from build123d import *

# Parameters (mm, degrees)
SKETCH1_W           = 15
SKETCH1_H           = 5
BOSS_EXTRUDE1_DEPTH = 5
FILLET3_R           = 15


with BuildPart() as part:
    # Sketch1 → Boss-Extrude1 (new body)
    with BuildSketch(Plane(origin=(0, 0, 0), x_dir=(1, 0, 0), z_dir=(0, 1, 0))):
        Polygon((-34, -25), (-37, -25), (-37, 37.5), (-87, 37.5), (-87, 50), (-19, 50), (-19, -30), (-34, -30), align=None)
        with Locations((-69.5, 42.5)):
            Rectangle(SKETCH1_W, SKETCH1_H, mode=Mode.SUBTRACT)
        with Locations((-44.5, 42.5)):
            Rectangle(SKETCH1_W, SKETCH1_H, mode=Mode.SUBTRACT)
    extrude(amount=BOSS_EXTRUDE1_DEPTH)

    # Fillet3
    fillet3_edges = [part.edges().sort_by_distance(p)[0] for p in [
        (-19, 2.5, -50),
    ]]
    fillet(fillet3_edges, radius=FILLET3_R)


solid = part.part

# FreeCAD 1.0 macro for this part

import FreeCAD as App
import Part
import Sketcher
from FreeCAD import Vector
Q = App.Units.Quantity


def edges_at(feature, points):
    """Names of the edges that pass closest to the given points."""
    edges = feature.Shape.Edges
    near = lambda p: min(range(len(edges)), key=lambda i: edges[i].distToShape(Part.Vertex(*p))[0])
    return sorted({f"Edge{near(p) + 1}" for p in points})

doc = App.newDocument("Part")
body = doc.addObject("PartDesign::Body", "Body")

# Sketch on XZ plane
sketch1 = body.newObject("Sketcher::SketchObject", "Sketch")
sketch1.AttachmentSupport = (doc.getObject("XZ_Plane"), [""])
sketch1.MapMode = "FlatFace"
sketch1.addGeometry(Part.LineSegment(Vector(-37, 25, 0), Vector(-34, 25, 0)), False)
sketch1.addGeometry(Part.LineSegment(Vector(-34, 25, 0), Vector(-34, 30, 0)), False)
sketch1.addGeometry(Part.LineSegment(Vector(-34, 30, 0), Vector(-19, 30, 0)), False)
sketch1.addGeometry(Part.LineSegment(Vector(-19, 30, 0), Vector(-19, -50, 0)), False)
sketch1.addGeometry(Part.LineSegment(Vector(-19, -50, 0), Vector(-87, -50, 0)), False)
sketch1.addGeometry(Part.LineSegment(Vector(-87, -50, 0), Vector(-87, -37.5, 0)), False)
sketch1.addGeometry(Part.LineSegment(Vector(-87, -37.5, 0), Vector(-37, -37.5, 0)), False)
sketch1.addGeometry(Part.LineSegment(Vector(-37, -37.5, 0), Vector(-37, 25, 0)), False)
sketch1.addGeometry(Part.LineSegment(Vector(-52, -40, 0), Vector(-52, -45, 0)), False)
sketch1.addGeometry(Part.LineSegment(Vector(-52, -45, 0), Vector(-37, -45, 0)), False)
sketch1.addGeometry(Part.LineSegment(Vector(-37, -45, 0), Vector(-37, -40, 0)), False)
sketch1.addGeometry(Part.LineSegment(Vector(-37, -40, 0), Vector(-52, -40, 0)), False)
sketch1.addGeometry(Part.LineSegment(Vector(-77, -40, 0), Vector(-77, -45, 0)), False)
sketch1.addGeometry(Part.LineSegment(Vector(-77, -45, 0), Vector(-62, -45, 0)), False)
sketch1.addGeometry(Part.LineSegment(Vector(-62, -45, 0), Vector(-62, -40, 0)), False)
sketch1.addGeometry(Part.LineSegment(Vector(-62, -40, 0), Vector(-77, -40, 0)), False)
sketch1.addConstraint(Sketcher.Constraint("Coincident", 0, 2, 1, 1))
sketch1.addConstraint(Sketcher.Constraint("Coincident", 1, 2, 2, 1))
sketch1.addConstraint(Sketcher.Constraint("Coincident", 2, 2, 3, 1))
sketch1.addConstraint(Sketcher.Constraint("Coincident", 3, 2, 4, 1))
sketch1.addConstraint(Sketcher.Constraint("Coincident", 4, 2, 5, 1))
sketch1.addConstraint(Sketcher.Constraint("Coincident", 5, 2, 6, 1))
sketch1.addConstraint(Sketcher.Constraint("Coincident", 6, 2, 7, 1))
sketch1.addConstraint(Sketcher.Constraint("Coincident", 7, 2, 0, 1))
sketch1.addConstraint(Sketcher.Constraint("Coincident", 8, 2, 9, 1))
sketch1.addConstraint(Sketcher.Constraint("Coincident", 9, 2, 10, 1))
sketch1.addConstraint(Sketcher.Constraint("Coincident", 10, 2, 11, 1))
sketch1.addConstraint(Sketcher.Constraint("Coincident", 11, 2, 8, 1))
sketch1.addConstraint(Sketcher.Constraint("Coincident", 12, 2, 13, 1))
sketch1.addConstraint(Sketcher.Constraint("Coincident", 13, 2, 14, 1))
sketch1.addConstraint(Sketcher.Constraint("Coincident", 14, 2, 15, 1))
sketch1.addConstraint(Sketcher.Constraint("Coincident", 15, 2, 12, 1))
sketch1.addConstraint(Sketcher.Constraint("Horizontal", 0))
sketch1.addConstraint(Sketcher.Constraint("Vertical", 1))
sketch1.addConstraint(Sketcher.Constraint("Horizontal", 2))
sketch1.addConstraint(Sketcher.Constraint("Vertical", 3))
sketch1.addConstraint(Sketcher.Constraint("Horizontal", 4))
sketch1.addConstraint(Sketcher.Constraint("Vertical", 5))
sketch1.addConstraint(Sketcher.Constraint("Horizontal", 6))
sketch1.addConstraint(Sketcher.Constraint("Vertical", 7))
sketch1.addConstraint(Sketcher.Constraint("Vertical", 8))
sketch1.addConstraint(Sketcher.Constraint("Horizontal", 9))
sketch1.addConstraint(Sketcher.Constraint("Vertical", 10))
sketch1.addConstraint(Sketcher.Constraint("Horizontal", 11))
sketch1.addConstraint(Sketcher.Constraint("Vertical", 12))
sketch1.addConstraint(Sketcher.Constraint("Horizontal", 13))
sketch1.addConstraint(Sketcher.Constraint("Vertical", 14))
sketch1.addConstraint(Sketcher.Constraint("Horizontal", 15))
sketch1.addConstraint(Sketcher.Constraint("Horizontal", 9, 2, 12, 2))
sketch1.addConstraint(Sketcher.Constraint("Horizontal", 11, 2, 14, 2))
sketch1.addConstraint(Sketcher.Constraint("Vertical", 7, 2, 9, 2))
sketch1.addConstraint(Sketcher.Constraint("Equal", 2, 9))
sketch1.addConstraint(Sketcher.Constraint("Equal", 11, 13))
sketch1.addConstraint(Sketcher.Constraint("Equal", 1, 8))
sketch1.addConstraint(Sketcher.Constraint("DistanceX", 0, 1, 0, 2, Q("3 mm")))
sketch1.addConstraint(Sketcher.Constraint("DistanceX", 2, 1, 2, 2, Q("15 mm")))
sketch1.addConstraint(Sketcher.Constraint("DistanceX", 4, 2, 4, 1, Q("68 mm")))
sketch1.addConstraint(Sketcher.Constraint("DistanceY", 1, 1, 1, 2, Q("5 mm")))
sketch1.addConstraint(Sketcher.Constraint("DistanceY", 3, 2, 3, 1, Q("80 mm")))
sketch1.addConstraint(Sketcher.Constraint("DistanceY", 5, 1, 5, 2, Q("12.5 mm")))
sketch1.addConstraint(Sketcher.Constraint("DistanceX", 0, 2, -1, 1, Q("34 mm")))
sketch1.addConstraint(Sketcher.Constraint("DistanceY", -1, 1, 0, 2, Q("25 mm")))
sketch1.addConstraint(Sketcher.Constraint("DistanceY", 8, 2, -1, 1, Q("45 mm")))
sketch1.addConstraint(Sketcher.Constraint("DistanceX", 12, 2, -1, 1, Q("77 mm")))
pad1 = body.newObject("PartDesign::Pad", "Pad")
pad1.Profile = sketch1
pad1.Length = 5
pad1.Reversed = True
doc.recompute()

fillet = body.newObject("PartDesign::Fillet", "Fillet")
fillet.Base = (pad1, edges_at(pad1, [(-19, 2.5, -50)]))
fillet.Radius = 15

doc.recompute()
